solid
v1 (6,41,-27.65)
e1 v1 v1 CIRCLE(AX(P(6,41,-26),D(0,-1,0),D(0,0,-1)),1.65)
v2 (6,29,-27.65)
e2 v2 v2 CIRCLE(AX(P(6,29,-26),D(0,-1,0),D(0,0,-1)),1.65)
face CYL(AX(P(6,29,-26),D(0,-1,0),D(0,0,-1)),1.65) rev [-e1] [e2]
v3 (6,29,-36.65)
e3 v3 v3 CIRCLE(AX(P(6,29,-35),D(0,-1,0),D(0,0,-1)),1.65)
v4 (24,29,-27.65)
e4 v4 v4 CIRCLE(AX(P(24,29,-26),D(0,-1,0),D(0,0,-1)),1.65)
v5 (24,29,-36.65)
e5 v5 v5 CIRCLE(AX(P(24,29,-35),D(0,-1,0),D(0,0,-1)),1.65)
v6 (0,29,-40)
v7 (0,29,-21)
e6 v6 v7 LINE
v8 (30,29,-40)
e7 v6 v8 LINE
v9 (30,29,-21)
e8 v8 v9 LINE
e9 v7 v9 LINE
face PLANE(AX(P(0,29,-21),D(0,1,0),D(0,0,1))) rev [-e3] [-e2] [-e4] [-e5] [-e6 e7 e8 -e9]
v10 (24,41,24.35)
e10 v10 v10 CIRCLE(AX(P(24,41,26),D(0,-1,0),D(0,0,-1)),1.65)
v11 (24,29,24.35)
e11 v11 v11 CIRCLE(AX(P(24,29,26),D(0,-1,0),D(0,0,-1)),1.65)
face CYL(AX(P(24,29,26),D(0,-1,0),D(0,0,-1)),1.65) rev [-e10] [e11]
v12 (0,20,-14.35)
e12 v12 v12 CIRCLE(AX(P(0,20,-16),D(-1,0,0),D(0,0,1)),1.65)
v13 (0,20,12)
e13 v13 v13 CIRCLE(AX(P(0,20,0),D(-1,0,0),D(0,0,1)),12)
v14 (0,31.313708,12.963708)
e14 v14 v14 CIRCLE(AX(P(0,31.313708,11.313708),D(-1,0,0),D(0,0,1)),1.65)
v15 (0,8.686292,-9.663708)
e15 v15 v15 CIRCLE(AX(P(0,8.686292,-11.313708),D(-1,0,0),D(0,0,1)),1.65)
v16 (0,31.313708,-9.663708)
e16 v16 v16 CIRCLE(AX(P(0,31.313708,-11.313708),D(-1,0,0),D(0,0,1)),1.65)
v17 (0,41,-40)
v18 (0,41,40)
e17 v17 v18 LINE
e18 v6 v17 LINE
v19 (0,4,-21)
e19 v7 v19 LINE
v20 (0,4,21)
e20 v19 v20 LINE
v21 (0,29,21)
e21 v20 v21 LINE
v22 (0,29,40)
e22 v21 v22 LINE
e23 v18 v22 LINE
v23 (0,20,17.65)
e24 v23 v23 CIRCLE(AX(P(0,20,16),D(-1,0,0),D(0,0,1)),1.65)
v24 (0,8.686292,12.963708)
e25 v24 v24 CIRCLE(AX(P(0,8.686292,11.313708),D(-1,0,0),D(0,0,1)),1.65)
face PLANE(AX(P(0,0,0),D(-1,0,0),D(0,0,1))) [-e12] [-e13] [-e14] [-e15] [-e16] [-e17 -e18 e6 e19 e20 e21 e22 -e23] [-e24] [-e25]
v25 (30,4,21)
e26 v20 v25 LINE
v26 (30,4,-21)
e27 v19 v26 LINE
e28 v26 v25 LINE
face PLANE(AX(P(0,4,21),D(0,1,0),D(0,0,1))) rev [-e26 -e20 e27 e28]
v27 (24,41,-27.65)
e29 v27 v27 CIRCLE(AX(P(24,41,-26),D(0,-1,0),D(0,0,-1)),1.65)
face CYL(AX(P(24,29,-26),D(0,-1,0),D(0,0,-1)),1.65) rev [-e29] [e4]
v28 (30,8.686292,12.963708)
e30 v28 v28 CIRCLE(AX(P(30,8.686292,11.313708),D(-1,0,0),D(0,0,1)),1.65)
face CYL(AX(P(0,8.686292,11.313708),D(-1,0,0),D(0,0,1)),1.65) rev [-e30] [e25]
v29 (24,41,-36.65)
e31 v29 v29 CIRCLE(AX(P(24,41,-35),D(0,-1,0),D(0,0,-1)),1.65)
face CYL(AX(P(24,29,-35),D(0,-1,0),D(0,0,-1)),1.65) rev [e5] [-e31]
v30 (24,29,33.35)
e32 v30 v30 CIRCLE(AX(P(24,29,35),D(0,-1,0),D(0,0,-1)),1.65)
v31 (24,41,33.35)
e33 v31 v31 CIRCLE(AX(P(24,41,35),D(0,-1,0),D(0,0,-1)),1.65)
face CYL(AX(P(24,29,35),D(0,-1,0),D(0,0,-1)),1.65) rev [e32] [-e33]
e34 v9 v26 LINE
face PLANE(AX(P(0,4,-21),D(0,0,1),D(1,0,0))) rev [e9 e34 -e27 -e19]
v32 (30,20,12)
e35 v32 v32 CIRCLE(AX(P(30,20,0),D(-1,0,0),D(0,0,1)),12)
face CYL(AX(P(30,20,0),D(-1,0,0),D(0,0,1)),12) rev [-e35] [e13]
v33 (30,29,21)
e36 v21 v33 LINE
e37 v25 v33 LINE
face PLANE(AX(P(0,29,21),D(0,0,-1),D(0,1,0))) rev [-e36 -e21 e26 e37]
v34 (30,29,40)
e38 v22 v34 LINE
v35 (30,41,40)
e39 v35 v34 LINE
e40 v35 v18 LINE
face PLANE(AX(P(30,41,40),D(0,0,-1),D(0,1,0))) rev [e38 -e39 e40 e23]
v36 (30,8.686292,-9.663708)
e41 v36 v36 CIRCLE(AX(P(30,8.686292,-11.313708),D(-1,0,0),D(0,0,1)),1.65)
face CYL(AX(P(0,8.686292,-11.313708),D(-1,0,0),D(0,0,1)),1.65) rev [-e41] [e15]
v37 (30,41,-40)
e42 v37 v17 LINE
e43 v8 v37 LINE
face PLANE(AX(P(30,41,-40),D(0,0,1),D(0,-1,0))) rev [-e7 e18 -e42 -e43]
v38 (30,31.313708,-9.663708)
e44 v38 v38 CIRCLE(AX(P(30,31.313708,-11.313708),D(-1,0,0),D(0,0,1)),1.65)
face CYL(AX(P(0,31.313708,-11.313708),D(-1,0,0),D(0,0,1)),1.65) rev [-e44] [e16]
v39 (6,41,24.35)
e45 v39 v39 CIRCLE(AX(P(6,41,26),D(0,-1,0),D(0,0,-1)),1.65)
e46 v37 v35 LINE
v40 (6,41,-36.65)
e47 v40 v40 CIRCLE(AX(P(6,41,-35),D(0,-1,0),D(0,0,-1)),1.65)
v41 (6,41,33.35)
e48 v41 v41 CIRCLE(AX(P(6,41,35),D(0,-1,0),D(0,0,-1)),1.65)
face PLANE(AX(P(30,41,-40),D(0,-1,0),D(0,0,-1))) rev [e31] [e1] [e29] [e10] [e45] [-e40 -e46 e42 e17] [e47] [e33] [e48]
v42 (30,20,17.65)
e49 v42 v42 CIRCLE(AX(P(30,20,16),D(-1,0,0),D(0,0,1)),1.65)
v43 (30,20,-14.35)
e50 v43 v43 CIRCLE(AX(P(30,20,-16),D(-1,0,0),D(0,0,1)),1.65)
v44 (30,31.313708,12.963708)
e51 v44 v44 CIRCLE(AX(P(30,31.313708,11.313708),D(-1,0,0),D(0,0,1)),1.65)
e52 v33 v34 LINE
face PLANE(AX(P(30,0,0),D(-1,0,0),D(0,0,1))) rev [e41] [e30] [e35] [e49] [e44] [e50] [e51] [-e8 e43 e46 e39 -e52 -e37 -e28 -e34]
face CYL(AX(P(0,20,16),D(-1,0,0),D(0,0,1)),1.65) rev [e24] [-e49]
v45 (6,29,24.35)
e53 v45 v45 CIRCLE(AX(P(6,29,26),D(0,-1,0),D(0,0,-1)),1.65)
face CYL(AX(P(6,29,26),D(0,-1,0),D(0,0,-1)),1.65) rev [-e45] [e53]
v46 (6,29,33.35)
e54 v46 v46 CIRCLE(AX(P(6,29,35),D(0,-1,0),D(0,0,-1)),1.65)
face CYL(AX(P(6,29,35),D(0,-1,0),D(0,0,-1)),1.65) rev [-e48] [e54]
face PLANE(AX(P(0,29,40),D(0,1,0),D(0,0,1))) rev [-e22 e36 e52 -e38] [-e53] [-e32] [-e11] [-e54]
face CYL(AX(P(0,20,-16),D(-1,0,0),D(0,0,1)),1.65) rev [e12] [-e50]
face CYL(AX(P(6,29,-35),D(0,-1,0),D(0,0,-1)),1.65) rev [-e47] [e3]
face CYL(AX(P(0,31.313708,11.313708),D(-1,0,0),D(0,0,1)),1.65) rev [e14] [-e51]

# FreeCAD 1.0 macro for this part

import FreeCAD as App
import Part
import Sketcher

doc = App.newDocument("Part")
body = doc.addObject("PartDesign::Body", "Body")

# Sketch on YZ plane
sketch1 = body.newObject("Sketcher::SketchObject", "Sketch")
sketch1.AttachmentSupport = (doc.getObject("YZ_Plane"), [""])
sketch1.MapMode = "FlatFace"
sketch1.addGeometry([
    Part.LineSegment(App.Vector(41, 40, 0), App.Vector(-41, 40, 0)),
    Part.LineSegment(App.Vector(-41, 40, 0), App.Vector(-41, -40, 0)),
    Part.LineSegment(App.Vector(-41, -40, 0), App.Vector(41, -40, 0)),
    Part.LineSegment(App.Vector(41, -40, 0), App.Vector(41, 40, 0)),
], False)
sketch1.addConstraint([
    Sketcher.Constraint("Coincident", 0, 2, 1, 1),
    Sketcher.Constraint("Coincident", 1, 2, 2, 1),
    Sketcher.Constraint("Coincident", 2, 2, 3, 1),
    Sketcher.Constraint("Coincident", 3, 2, 0, 1),
    Sketcher.Constraint("Horizontal", 0),
    Sketcher.Constraint("Vertical", 1),
    Sketcher.Constraint("Horizontal", 2),
    Sketcher.Constraint("Vertical", 3),
    Sketcher.Constraint("Symmetric", 0, 2, 2, 2, -1, 1),
    Sketcher.Constraint("DistanceX", 0, 2, 0, 1, 82.0),
    Sketcher.Constraint("DistanceY", 1, 2, 1, 1, 80.0),
])
pad1 = body.newObject("PartDesign::Pad", "Pad")
pad1.Profile = sketch1
pad1.Length = 30

# Sketch on YZ plane
sketch2 = body.newObject("Sketcher::SketchObject", "Sketch001")
sketch2.AttachmentSupport = (doc.getObject("YZ_Plane"), [""])
sketch2.MapMode = "FlatFace"
sketch2.addGeometry(Part.Circle(App.Vector(20, 0, 0), App.Vector(0, 0, 1), 12), False)
sketch2.addConstraint([
    Sketcher.Constraint("PointOnObject", 0, 3, -1),
    Sketcher.Constraint("Diameter", 0, 24.0),
    Sketcher.Constraint("DistanceX", -1, 1, 0, 3, 20.0),
])
pocket1 = body.newObject("PartDesign::Pocket", "Pocket")
pocket1.Profile = sketch2
pocket1.Type = "ThroughAll"
pocket1.Reversed = True

# Sketch on YZ plane
sketch3 = body.newObject("Sketcher::SketchObject", "Sketch002")
sketch3.AttachmentSupport = (doc.getObject("YZ_Plane"), [""])
sketch3.MapMode = "FlatFace"
sketch3.AttachmentOffset = App.Placement(App.Vector(0, 0, 30), App.Rotation())
sketch3.addGeometry([
    Part.LineSegment(App.Vector(29, 21, 0), App.Vector(29, 40, 0)),  # 0
    Part.LineSegment(App.Vector(29, 40, 0), App.Vector(-41, 40, 0)),  # 1
    Part.LineSegment(App.Vector(-41, 40, 0), App.Vector(-41, -40, 0)),  # 2
    Part.LineSegment(App.Vector(-41, -40, 0), App.Vector(29, -40, 0)),  # 3
    Part.LineSegment(App.Vector(29, -40, 0), App.Vector(29, -21, 0)),  # 4
    Part.LineSegment(App.Vector(29, -21, 0), App.Vector(4, -21, 0)),  # 5
    Part.LineSegment(App.Vector(4, -21, 0), App.Vector(4, 21, 0)),  # 6
    Part.LineSegment(App.Vector(4, 21, 0), App.Vector(29, 21, 0)),  # 7
], False)
sketch3.addConstraint([
    Sketcher.Constraint("Coincident", 0, 2, 1, 1),
    Sketcher.Constraint("Coincident", 1, 2, 2, 1),
    Sketcher.Constraint("Coincident", 2, 2, 3, 1),
    Sketcher.Constraint("Coincident", 3, 2, 4, 1),
    Sketcher.Constraint("Coincident", 4, 2, 5, 1),
    Sketcher.Constraint("Coincident", 5, 2, 6, 1),
    Sketcher.Constraint("Coincident", 6, 2, 7, 1),
    Sketcher.Constraint("Coincident", 7, 2, 0, 1),
    Sketcher.Constraint("Vertical", 0),
    Sketcher.Constraint("Horizontal", 1),
    Sketcher.Constraint("Vertical", 2),
    Sketcher.Constraint("Horizontal", 3),
    Sketcher.Constraint("Vertical", 4),
    Sketcher.Constraint("Horizontal", 5),
    Sketcher.Constraint("Vertical", 6),
    Sketcher.Constraint("Horizontal", 7),
    Sketcher.Constraint("Symmetric", 0, 2, 3, 2, -1),
    Sketcher.Constraint("Equal", 0, 4),
    Sketcher.Constraint("DistanceX", 1, 2, 1, 1, 70.0),
    Sketcher.Constraint("DistanceX", 5, 2, 5, 1, 25.0),
    Sketcher.Constraint("DistanceY", 0, 1, 0, 2, 19.0),
    Sketcher.Constraint("DistanceY", 2, 2, 2, 1, 80.0),
    Sketcher.Constraint("DistanceX", -1, 1, 0, 2, 29.0),
])
pocket2 = body.newObject("PartDesign::Pocket", "Pocket001")
pocket2.Profile = sketch3
pocket2.Type = "ThroughAll"

# Sketch on YZ plane
sketch4 = body.newObject("Sketcher::SketchObject", "Sketch003")
sketch4.AttachmentSupport = (doc.getObject("YZ_Plane"), [""])
sketch4.MapMode = "FlatFace"
sketch4.addGeometry([
    Part.Circle(App.Vector(31.313708, -11.313708, 0), App.Vector(0, 0, 1), 1.65),  # 0
    Part.Circle(App.Vector(8.686292, 11.313708, 0), App.Vector(0, 0, 1), 1.65),  # 1
    Part.Circle(App.Vector(31.313708, 11.313708, 0), App.Vector(0, 0, 1), 1.65),  # 2
    Part.Circle(App.Vector(20, 16, 0), App.Vector(0, 0, 1), 1.65),  # 3
    Part.Circle(App.Vector(8.686292, -11.313708, 0), App.Vector(0, 0, 1), 1.65),  # 4
    Part.Circle(App.Vector(20, -16, 0), App.Vector(0, 0, 1), 1.65),  # 5
], False)
sketch4.addConstraint([
    Sketcher.Constraint("Equal", 0, 1),
    Sketcher.Constraint("Equal", 1, 2),
    Sketcher.Constraint("Equal", 2, 3),
    Sketcher.Constraint("Equal", 3, 4),
    Sketcher.Constraint("Equal", 4, 5),
    Sketcher.Constraint("Symmetric", 0, 3, 2, 3, -1),
    Sketcher.Constraint("Symmetric", 1, 3, 4, 3, -1),
    Sketcher.Constraint("Symmetric", 3, 3, 5, 3, -1),
    Sketcher.Constraint("Horizontal", 1, 3, 2, 3),
    Sketcher.Constraint("Diameter", 0, 3.3),
    Sketcher.Constraint("DistanceX", -1, 1, 3, 3, 20.0),
    Sketcher.Constraint("DistanceY", -1, 1, 3, 3, 16.0),
    Sketcher.Constraint("DistanceX", -1, 1, 0, 3, 31.313708),
    Sketcher.Constraint("DistanceY", 0, 3, -1, 1, 11.313708),
    Sketcher.Constraint("DistanceX", -1, 1, 1, 3, 8.686292),
])
doc.recompute()
hole = body.newObject("PartDesign::Hole", "Hole")
hole.Profile = sketch4
hole.ThreadType = "None"
hole.Diameter = 3.3
hole.DepthType = "ThroughAll"
hole.Reversed = True

# Sketch on XZ plane
sketch5 = body.newObject("Sketcher::SketchObject", "Sketch004")
sketch5.AttachmentSupport = (doc.getObject("XZ_Plane"), [""])
sketch5.MapMode = "FlatFace"
sketch5.AttachmentOffset = App.Placement(App.Vector(0, 0, -29), App.Rotation())
sketch5.addGeometry([
    Part.Circle(App.Vector(24, -35, 0), App.Vector(0, 0, 1), 1.65),  # 0
    Part.Circle(App.Vector(6, -35, 0), App.Vector(0, 0, 1), 1.65),  # 1
    Part.Circle(App.Vector(6, -26, 0), App.Vector(0, 0, 1), 1.65),  # 2
    Part.Circle(App.Vector(24, -26, 0), App.Vector(0, 0, 1), 1.65),  # 3
    Part.Circle(App.Vector(6, 35, 0), App.Vector(0, 0, 1), 1.65),  # 4
    Part.Circle(App.Vector(6, 26, 0), App.Vector(0, 0, 1), 1.65),  # 5
    Part.Circle(App.Vector(24, 26, 0), App.Vector(0, 0, 1), 1.65),  # 6
    Part.Circle(App.Vector(24, 35, 0), App.Vector(0, 0, 1), 1.65),  # 7
], False)
sketch5.addConstraint([
    Sketcher.Constraint("Equal", 0, 1),
    Sketcher.Constraint("Equal", 1, 2),
    Sketcher.Constraint("Equal", 2, 3),
    Sketcher.Constraint("Equal", 3, 4),
    Sketcher.Constraint("Equal", 4, 5),
    Sketcher.Constraint("Equal", 5, 6),
    Sketcher.Constraint("Equal", 6, 7),
    Sketcher.Constraint("Symmetric", 1, 3, 4, 3, -1),
    Sketcher.Constraint("Symmetric", 2, 3, 5, 3, -1),
    Sketcher.Constraint("Symmetric", 3, 3, 6, 3, -1),
    Sketcher.Constraint("Symmetric", 0, 3, 7, 3, -1),
    Sketcher.Constraint("Horizontal", 0, 3, 1, 3),
    Sketcher.Constraint("Horizontal", 2, 3, 3, 3),
    Sketcher.Constraint("Vertical", 1, 3, 2, 3),
    Sketcher.Constraint("Vertical", 0, 3, 3, 3),
    Sketcher.Constraint("Diameter", 0, 3.3),
    Sketcher.Constraint("DistanceX", -1, 1, 0, 3, 24.0),
    Sketcher.Constraint("DistanceY", 0, 3, -1, 1, 35.0),
    Sketcher.Constraint("DistanceX", -1, 1, 1, 3, 6.0),
    Sketcher.Constraint("DistanceY", 2, 3, -1, 1, 26.0),
])
doc.recompute()
hole2 = body.newObject("PartDesign::Hole", "Hole001")
hole2.Profile = sketch5
hole2.ThreadType = "None"
hole2.Diameter = 3.3
hole2.DepthType = "ThroughAll"

doc.recompute()
